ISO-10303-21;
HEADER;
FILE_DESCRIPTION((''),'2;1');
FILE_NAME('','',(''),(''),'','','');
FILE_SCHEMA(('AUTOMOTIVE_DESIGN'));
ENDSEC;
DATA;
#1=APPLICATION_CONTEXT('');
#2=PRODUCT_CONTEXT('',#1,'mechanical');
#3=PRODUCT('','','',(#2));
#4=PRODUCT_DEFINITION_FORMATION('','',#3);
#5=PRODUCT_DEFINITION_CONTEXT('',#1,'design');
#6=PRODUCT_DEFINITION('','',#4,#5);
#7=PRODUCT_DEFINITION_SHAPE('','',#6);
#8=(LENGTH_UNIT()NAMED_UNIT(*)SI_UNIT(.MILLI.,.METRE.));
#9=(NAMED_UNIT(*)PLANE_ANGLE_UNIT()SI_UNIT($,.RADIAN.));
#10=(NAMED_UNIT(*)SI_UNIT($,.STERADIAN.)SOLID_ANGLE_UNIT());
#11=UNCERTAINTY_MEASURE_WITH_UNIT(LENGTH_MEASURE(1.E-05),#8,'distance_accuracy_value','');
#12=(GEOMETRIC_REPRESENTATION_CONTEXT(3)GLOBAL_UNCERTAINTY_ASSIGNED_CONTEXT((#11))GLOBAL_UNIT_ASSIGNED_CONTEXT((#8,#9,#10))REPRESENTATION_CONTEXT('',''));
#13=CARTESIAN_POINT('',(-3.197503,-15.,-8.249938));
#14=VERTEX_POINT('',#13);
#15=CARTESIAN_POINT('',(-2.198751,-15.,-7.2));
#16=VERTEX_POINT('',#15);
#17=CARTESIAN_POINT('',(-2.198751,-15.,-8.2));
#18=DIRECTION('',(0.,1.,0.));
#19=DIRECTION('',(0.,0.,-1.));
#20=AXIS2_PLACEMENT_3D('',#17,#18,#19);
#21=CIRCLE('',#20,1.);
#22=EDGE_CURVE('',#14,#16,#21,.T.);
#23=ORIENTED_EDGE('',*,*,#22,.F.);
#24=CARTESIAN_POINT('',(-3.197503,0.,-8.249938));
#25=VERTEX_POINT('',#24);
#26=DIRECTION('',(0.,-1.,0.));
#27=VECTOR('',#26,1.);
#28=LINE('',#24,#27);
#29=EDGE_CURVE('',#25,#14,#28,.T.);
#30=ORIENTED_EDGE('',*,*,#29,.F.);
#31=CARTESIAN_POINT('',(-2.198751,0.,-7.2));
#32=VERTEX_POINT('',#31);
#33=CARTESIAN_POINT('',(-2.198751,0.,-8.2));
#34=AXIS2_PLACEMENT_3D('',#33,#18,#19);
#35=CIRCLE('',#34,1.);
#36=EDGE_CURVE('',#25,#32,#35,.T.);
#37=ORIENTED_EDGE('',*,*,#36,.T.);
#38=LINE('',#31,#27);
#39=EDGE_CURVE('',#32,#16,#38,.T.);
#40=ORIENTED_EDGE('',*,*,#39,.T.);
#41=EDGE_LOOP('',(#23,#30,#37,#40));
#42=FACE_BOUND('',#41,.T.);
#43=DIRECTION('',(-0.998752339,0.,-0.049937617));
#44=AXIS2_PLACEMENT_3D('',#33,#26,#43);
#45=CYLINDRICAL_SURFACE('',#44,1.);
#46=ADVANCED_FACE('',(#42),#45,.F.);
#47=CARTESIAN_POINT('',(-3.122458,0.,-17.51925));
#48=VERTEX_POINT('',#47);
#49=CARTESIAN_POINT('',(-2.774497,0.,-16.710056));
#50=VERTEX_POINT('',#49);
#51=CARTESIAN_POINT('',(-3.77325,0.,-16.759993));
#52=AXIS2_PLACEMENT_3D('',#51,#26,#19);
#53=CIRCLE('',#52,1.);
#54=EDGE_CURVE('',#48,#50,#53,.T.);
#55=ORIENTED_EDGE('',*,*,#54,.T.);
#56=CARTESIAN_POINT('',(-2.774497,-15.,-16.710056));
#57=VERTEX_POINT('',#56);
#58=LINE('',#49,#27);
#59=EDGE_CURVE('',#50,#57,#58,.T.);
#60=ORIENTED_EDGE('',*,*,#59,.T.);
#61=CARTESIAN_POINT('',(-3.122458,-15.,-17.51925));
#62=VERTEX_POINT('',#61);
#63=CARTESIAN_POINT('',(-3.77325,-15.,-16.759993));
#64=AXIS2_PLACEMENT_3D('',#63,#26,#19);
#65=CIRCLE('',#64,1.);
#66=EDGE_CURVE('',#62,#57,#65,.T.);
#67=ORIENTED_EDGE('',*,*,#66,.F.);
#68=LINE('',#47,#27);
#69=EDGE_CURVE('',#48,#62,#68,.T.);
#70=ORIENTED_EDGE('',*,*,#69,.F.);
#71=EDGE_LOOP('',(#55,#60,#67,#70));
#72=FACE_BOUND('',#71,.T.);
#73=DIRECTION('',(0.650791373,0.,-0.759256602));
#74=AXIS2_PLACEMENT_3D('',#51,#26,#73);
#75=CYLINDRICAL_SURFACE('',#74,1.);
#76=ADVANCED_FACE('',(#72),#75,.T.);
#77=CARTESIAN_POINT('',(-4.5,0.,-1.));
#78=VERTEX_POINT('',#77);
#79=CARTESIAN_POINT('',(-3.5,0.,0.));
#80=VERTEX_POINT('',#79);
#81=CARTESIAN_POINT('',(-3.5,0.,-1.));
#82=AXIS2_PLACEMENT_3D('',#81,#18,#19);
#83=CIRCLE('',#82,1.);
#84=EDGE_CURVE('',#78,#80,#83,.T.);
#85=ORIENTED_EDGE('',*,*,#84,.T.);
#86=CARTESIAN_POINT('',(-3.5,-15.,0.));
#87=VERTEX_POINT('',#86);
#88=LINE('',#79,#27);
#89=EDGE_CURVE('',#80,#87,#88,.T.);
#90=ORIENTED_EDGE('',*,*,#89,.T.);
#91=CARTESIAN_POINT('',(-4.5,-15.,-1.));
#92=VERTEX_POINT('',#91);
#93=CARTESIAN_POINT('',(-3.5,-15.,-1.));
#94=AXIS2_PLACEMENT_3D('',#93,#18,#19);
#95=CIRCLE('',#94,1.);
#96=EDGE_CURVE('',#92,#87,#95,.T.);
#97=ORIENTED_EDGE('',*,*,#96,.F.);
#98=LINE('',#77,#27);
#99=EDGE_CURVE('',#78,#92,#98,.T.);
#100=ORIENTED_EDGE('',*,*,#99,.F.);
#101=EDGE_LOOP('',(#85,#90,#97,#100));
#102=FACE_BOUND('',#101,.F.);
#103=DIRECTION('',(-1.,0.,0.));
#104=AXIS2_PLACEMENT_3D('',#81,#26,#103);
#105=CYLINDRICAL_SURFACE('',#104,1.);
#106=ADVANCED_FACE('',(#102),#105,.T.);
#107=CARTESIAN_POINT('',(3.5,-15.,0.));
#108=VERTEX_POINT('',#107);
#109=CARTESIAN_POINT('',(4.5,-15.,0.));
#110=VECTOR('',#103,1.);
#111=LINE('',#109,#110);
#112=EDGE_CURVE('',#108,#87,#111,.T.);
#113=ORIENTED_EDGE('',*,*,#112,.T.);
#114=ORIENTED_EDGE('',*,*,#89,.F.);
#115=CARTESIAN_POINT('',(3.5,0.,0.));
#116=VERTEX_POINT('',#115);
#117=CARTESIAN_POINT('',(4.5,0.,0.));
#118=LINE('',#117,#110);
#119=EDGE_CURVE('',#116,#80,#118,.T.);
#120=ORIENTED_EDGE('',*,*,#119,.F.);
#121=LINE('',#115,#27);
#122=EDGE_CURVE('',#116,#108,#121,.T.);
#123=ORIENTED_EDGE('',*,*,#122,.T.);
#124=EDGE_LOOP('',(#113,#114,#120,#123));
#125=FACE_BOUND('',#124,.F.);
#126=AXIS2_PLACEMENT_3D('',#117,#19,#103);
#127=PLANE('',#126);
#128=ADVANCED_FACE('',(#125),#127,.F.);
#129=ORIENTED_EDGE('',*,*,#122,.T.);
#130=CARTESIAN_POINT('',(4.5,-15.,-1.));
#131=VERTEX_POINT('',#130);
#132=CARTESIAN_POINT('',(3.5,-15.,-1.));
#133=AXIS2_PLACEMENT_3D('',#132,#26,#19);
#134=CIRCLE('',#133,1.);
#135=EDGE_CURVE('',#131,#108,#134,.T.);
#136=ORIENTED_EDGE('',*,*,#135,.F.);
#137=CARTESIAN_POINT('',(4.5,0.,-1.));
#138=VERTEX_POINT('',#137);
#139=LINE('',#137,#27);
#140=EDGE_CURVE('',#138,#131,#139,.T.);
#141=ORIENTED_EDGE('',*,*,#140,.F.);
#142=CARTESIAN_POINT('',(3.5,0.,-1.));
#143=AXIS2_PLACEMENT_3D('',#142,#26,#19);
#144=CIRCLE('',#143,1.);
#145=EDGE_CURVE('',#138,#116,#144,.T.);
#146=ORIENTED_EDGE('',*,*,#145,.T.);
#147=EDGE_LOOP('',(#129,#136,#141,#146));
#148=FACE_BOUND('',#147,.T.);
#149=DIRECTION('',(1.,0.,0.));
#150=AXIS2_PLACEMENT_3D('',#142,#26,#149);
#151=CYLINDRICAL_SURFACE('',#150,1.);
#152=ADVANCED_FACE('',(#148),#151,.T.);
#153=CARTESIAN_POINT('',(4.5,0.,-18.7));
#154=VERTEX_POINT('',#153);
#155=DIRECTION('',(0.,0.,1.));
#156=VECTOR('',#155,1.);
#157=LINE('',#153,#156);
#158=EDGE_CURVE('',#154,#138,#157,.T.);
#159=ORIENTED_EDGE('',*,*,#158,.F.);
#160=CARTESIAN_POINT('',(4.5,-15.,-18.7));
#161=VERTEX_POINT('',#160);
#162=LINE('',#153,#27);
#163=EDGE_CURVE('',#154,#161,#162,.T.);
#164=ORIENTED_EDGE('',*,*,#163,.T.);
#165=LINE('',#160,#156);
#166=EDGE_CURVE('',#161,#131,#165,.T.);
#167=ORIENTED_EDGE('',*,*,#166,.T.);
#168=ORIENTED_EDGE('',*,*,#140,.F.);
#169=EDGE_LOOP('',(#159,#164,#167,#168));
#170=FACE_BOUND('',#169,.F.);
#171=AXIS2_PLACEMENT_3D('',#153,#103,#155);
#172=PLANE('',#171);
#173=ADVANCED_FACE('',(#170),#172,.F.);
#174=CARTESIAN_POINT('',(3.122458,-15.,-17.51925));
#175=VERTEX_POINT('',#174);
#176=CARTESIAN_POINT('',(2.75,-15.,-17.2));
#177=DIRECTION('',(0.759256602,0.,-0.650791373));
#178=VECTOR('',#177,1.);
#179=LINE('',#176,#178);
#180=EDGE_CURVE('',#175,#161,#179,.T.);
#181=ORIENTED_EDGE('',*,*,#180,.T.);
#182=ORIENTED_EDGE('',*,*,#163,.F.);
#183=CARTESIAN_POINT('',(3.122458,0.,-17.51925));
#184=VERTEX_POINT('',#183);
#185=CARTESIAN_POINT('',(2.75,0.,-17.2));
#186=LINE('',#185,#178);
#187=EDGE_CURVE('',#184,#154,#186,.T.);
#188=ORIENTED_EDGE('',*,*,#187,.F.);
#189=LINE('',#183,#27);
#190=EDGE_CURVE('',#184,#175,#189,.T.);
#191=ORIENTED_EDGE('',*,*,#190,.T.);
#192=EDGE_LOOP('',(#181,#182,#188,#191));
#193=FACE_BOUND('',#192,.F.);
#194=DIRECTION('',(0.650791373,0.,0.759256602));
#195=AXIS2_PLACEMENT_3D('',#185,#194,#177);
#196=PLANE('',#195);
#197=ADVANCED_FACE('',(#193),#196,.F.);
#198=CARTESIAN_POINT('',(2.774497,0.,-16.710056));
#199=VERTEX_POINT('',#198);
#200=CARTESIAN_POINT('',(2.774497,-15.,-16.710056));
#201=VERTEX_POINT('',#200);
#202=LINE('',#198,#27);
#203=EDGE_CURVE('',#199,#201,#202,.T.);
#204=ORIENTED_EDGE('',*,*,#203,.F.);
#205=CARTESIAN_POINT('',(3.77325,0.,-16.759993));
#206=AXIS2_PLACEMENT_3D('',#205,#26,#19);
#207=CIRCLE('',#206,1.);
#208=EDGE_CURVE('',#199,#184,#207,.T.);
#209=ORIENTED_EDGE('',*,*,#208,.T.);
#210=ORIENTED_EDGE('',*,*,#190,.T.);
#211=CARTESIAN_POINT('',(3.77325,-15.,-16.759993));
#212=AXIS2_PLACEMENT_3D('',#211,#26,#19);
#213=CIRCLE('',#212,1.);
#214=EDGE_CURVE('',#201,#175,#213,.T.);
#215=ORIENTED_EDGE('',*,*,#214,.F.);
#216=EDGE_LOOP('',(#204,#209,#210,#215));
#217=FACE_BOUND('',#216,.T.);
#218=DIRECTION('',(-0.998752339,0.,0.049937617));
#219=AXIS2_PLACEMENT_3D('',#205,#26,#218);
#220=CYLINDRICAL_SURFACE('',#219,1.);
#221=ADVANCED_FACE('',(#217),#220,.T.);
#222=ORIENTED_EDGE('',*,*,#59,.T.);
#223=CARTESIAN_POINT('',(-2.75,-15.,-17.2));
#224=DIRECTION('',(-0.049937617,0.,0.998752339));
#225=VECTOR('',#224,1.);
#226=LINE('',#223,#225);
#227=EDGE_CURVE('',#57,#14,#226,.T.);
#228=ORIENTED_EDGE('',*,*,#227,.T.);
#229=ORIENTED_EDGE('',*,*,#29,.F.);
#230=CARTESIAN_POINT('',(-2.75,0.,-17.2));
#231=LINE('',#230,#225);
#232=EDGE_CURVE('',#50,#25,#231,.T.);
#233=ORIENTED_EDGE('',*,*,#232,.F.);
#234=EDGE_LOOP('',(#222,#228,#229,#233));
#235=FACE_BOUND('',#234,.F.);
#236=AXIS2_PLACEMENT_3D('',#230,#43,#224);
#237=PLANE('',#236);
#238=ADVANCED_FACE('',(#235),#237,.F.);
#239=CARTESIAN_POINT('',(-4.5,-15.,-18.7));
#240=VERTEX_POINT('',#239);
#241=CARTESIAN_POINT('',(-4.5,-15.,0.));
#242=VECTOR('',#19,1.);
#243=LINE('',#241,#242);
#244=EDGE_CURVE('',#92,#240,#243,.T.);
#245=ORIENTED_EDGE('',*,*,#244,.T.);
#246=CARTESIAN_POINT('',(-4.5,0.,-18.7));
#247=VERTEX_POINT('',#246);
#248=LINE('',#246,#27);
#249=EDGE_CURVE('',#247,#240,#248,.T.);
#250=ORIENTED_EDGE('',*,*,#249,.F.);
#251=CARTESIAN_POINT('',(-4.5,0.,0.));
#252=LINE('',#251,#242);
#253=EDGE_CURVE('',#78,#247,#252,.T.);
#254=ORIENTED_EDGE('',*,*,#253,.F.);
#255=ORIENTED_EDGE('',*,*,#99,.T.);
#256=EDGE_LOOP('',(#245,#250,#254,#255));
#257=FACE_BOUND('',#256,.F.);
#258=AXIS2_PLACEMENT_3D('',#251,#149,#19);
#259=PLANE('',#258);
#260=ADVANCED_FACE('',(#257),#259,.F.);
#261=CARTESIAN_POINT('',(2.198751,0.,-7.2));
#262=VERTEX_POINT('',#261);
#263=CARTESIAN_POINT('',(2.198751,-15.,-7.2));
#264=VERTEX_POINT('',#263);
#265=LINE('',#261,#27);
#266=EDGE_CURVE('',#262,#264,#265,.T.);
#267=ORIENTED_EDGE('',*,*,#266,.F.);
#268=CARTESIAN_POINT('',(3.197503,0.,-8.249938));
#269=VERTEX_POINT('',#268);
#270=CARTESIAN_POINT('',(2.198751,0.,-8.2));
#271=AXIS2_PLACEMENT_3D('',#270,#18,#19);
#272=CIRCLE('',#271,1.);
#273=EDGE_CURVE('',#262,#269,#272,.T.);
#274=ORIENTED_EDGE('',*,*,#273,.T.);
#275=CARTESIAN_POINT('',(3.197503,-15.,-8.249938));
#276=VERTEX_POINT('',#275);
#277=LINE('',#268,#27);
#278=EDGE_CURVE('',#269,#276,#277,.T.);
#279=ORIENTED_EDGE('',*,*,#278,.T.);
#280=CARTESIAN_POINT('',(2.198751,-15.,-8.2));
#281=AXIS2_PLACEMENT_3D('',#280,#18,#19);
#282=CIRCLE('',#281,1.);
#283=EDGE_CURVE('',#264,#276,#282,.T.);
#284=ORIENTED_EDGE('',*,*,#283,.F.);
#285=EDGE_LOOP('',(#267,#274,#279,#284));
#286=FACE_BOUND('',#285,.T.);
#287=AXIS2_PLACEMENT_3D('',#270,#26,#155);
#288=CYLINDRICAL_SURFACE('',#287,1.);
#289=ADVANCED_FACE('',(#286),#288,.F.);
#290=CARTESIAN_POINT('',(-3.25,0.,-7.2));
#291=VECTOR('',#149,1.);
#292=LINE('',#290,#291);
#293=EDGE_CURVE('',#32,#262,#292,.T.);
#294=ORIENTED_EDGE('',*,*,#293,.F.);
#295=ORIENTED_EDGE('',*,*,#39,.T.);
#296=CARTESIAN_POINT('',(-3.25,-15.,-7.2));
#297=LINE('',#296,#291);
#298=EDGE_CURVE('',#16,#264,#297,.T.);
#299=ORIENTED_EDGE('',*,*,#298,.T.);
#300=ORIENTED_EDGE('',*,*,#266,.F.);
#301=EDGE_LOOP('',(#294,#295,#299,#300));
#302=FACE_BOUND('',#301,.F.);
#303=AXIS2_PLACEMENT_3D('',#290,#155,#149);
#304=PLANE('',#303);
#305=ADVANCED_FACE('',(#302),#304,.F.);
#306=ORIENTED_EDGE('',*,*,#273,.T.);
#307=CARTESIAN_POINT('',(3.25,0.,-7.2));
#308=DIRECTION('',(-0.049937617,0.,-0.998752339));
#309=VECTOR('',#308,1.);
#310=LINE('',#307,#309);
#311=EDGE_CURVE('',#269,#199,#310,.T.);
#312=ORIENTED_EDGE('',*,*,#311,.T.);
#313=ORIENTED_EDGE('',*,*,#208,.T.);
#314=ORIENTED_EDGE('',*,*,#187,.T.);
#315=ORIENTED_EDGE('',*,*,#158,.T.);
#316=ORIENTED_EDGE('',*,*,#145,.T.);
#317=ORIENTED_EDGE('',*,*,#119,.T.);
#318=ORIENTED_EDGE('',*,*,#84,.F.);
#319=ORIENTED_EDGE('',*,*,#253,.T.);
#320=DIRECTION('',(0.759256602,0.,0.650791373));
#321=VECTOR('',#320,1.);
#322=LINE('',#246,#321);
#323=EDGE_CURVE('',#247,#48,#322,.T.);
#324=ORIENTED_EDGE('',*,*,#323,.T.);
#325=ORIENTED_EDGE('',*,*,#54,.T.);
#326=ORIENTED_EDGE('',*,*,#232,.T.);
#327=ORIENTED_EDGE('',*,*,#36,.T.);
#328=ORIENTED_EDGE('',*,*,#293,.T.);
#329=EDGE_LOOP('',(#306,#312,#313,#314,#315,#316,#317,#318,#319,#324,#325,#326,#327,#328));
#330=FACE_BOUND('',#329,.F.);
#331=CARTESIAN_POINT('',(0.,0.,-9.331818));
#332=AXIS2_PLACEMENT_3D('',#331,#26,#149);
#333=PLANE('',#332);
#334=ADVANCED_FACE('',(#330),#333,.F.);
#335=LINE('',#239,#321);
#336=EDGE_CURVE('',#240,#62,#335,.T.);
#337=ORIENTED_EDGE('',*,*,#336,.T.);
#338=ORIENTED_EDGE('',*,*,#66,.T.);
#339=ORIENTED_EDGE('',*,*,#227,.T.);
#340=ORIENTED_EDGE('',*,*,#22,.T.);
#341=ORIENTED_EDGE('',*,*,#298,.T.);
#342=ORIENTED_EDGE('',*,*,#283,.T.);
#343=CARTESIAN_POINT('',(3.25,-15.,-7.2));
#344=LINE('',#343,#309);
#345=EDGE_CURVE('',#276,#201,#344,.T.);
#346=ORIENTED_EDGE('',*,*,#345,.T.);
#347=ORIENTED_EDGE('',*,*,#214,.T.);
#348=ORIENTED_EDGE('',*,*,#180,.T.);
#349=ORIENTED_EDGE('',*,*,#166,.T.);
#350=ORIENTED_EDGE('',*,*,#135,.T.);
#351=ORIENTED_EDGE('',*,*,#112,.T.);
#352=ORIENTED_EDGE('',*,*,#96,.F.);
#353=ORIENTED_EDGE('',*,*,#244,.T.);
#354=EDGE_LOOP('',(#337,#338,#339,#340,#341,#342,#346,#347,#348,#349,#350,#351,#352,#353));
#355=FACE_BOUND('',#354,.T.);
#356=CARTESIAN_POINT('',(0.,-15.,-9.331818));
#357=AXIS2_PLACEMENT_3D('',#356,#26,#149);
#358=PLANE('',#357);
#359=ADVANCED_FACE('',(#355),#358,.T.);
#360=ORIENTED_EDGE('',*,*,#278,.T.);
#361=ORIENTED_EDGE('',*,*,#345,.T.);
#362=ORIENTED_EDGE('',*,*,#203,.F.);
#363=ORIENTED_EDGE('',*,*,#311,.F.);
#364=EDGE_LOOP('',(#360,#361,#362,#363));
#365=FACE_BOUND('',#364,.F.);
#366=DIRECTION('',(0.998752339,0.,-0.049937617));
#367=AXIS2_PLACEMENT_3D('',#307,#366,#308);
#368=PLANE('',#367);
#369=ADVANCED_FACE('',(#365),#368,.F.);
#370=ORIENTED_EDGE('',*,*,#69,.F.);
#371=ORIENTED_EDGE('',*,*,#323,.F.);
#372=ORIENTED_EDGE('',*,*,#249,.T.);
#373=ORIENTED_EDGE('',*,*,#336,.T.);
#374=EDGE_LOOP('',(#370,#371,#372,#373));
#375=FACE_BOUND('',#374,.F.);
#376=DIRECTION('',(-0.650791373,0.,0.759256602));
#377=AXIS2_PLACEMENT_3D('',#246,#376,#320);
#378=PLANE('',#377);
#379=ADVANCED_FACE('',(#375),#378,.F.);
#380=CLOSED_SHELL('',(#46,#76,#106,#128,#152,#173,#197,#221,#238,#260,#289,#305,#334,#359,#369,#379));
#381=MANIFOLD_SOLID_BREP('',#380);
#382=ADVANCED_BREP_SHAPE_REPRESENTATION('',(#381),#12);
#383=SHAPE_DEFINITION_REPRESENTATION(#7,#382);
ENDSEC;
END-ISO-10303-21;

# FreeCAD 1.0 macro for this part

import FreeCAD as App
import Part
import Sketcher


def edges_at(feature, points):
    """Names of the edges that pass closest to the given points."""
    edges = feature.Shape.Edges
    near = lambda p: min(range(len(edges)), key=lambda i: edges[i].distToShape(Part.Vertex(*p))[0])
    return sorted({f"Edge{near(p) + 1}" for p in points})


def add_polygon(sketch, points):
    """Adds a closed chain of lines whose ends are joined by coincident constraints."""
    first, n = sketch.GeometryCount, len(points)
    for a, b in zip(points, points[1:] + points[:1]):
        sketch.addGeometry(Part.LineSegment(App.Vector(*a, 0), App.Vector(*b, 0)), False)
    for i in range(n):
        sketch.addConstraint(Sketcher.Constraint("Coincident", first + i, 2, first + (i + 1) % n, 1))

doc = App.newDocument("Part")
body = doc.addObject("PartDesign::Body", "Body")

sketch1 = body.newObject("Sketcher::SketchObject", "Sketch")
sketch1.AttachmentSupport = (doc.getObject("XZ_Plane"), [""])
sketch1.MapMode = "FlatFace"
add_polygon(sketch1, [(-4.5, 0), (-4.5, -18.7), (-2.8, -17.2), (-3.2, -7.2), (3.2, -7.2), (2.8, -17.2), (4.5, -18.7), (4.5, 0)])
sketch1.addConstraint(Sketcher.Constraint("Vertical", 0))
sketch1.addConstraint(Sketcher.Constraint("Horizontal", 3))
sketch1.addConstraint(Sketcher.Constraint("Vertical", 6))
sketch1.addConstraint(Sketcher.Constraint("Horizontal", 7))
sketch1.addConstraint(Sketcher.Constraint("Symmetric", 6, 2, 7, 2, -1, 1))
sketch1.addConstraint(Sketcher.Constraint("Symmetric", 1, 2, 4, 2, -2))
sketch1.addConstraint(Sketcher.Constraint("Horizontal", 0, 2, 5, 2))
sketch1.addConstraint(Sketcher.Constraint("Equal", 2, 4))
sketch1.addConstraint(Sketcher.Constraint("DistanceX", 7, 2, 7, 1, 9.0))
sketch1.addConstraint(Sketcher.Constraint("DistanceX", 3, 1, 3, 2, 6.5))
sketch1.addConstraint(Sketcher.Constraint("DistanceY", 0, 2, 0, 1, 18.7))
sketch1.addConstraint(Sketcher.Constraint("DistanceY", 1, 2, 2, 2, 10.0))
sketch1.addConstraint(Sketcher.Constraint("DistanceX", 1, 2, 3, 2, 6.0))
sketch1.addConstraint(Sketcher.Constraint("DistanceY", 1, 2, -1, 1, 17.2))
pad1 = body.newObject("PartDesign::Pad", "Pad")
pad1.Profile = sketch1
pad1.Length = 15
doc.recompute()

fillet = body.newObject("PartDesign::Fillet", "Fillet")
fillet.Base = (pad1, edges_at(pad1, [
    (-2.75, -7.5, -17.2),
    (-4.5, -7.5, 0),
    (4.5, -7.5, 0),
    (2.75, -7.5, -17.2),
]))
fillet.Radius = 1
doc.recompute()

fillet2 = body.newObject("PartDesign::Fillet", "Fillet001")
fillet2.Base = (fillet, edges_at(fillet, [(-3.25, -7.5, -7.2), (3.25, -7.5, -7.2)]))
fillet2.Radius = 1

doc.recompute()
